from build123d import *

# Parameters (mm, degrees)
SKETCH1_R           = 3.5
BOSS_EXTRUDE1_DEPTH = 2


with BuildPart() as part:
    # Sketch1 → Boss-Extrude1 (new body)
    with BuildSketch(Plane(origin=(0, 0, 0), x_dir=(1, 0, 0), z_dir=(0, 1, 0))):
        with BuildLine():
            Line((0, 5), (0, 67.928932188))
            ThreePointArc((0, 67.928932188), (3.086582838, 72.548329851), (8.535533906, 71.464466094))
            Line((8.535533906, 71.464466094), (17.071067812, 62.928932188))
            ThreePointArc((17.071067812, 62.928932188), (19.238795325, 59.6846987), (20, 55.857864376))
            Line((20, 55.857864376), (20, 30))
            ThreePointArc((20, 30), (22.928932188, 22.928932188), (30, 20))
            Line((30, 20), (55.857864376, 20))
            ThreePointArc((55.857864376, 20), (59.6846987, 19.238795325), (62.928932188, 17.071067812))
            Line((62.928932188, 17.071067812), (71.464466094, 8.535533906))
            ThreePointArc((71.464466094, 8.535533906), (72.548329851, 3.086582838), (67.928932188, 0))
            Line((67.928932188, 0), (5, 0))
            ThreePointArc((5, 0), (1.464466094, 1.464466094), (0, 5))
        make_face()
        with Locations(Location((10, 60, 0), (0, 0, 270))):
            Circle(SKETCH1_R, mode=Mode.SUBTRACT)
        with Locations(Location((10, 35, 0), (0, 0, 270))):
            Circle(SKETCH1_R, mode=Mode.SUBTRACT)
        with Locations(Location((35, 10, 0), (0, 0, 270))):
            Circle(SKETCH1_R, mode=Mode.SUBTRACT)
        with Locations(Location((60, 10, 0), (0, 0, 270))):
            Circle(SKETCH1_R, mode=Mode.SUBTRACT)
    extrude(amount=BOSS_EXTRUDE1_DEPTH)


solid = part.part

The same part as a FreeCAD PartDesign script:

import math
import FreeCAD as App
import Part
import Sketcher
Q = App.Units.Quantity

doc = App.newDocument("Part")
params = doc.addObject("Spreadsheet::Sheet", "Params")
for row, (alias, value) in enumerate([
    ("sketch1_diameter", "7 mm"),
    ("sketch1_radius", "5 mm"),
    ("sketch1_radius2", "10 mm"),
    ("pad1_length", "2 mm"),
], start=1):
    params.set(f"A{row}", alias)
    params.set(f"B{row}", "=" + value)
    params.setAlias(f"B{row}", alias)

body = doc.addObject("PartDesign::Body", "Body")

sketch1 = body.newObject("Sketcher::SketchObject", "Sketch")
sketch1.AttachmentSupport = (doc.getObject("XZ_Plane"), [""])
sketch1.MapMode = "FlatFace"
sketch1.addGeometry(Part.LineSegment(App.Vector(0, -67.9, 0), App.Vector(0, -5, 0)), False)
sketch1.addGeometry(Part.ArcOfCircle(Part.Circle(App.Vector(5, -5, 0), App.Vector(0, 0, 1), 5), math.radians(90), math.radians(180)), False)
sketch1.addGeometry(Part.LineSegment(App.Vector(5, 0, 0), App.Vector(67.9, 0, 0)), False)
sketch1.addGeometry(Part.ArcOfCircle(Part.Circle(App.Vector(67.9, -5, 0), App.Vector(0, 0, 1), 5), math.radians(-45), math.radians(90)), False)
sketch1.addGeometry(Part.LineSegment(App.Vector(71.5, -8.5, 0), App.Vector(62.9, -17.1, 0)), False)
sketch1.addGeometry(Part.ArcOfCircle(Part.Circle(App.Vector(55.9, -10, 0), App.Vector(0, 0, 1), 10), math.radians(-90), math.radians(-45)), False)
sketch1.addGeometry(Part.LineSegment(App.Vector(55.9, -20, 0), App.Vector(30, -20, 0)), False)
sketch1.addGeometry(Part.ArcOfCircle(Part.Circle(App.Vector(30, -30, 0), App.Vector(0, 0, 1), 10), math.radians(90), math.radians(180)), False)
sketch1.addGeometry(Part.LineSegment(App.Vector(20, -30, 0), App.Vector(20, -55.9, 0)), False)
sketch1.addGeometry(Part.ArcOfCircle(Part.Circle(App.Vector(10, -55.9, 0), App.Vector(0, 0, 1), 10), math.radians(-45), math.radians(0)), False)
sketch1.addGeometry(Part.LineSegment(App.Vector(17.1, -62.9, 0), App.Vector(8.5, -71.5, 0)), False)
sketch1.addGeometry(Part.ArcOfCircle(Part.Circle(App.Vector(5, -67.9, 0), App.Vector(0, 0, 1), 5), math.radians(180), math.radians(315)), False)
sketch1.addGeometry(Part.Circle(App.Vector(60, -10, 0), App.Vector(0, 0, 1), 3.5), False)
sketch1.addGeometry(Part.Circle(App.Vector(35, -10, 0), App.Vector(0, 0, 1), 3.5), False)
sketch1.addGeometry(Part.Circle(App.Vector(10, -35, 0), App.Vector(0, 0, 1), 3.5), False)
sketch1.addGeometry(Part.Circle(App.Vector(10, -60, 0), App.Vector(0, 0, 1), 3.5), False)
sketch1.addConstraint(Sketcher.Constraint("Tangent", 0, 2, 1, 2))
sketch1.addConstraint(Sketcher.Constraint("Tangent", 1, 1, 2, 1))
sketch1.addConstraint(Sketcher.Constraint("Tangent", 2, 2, 3, 2))
sketch1.addConstraint(Sketcher.Constraint("Tangent", 3, 1, 4, 1))
sketch1.addConstraint(Sketcher.Constraint("Tangent", 4, 2, 5, 2))
sketch1.addConstraint(Sketcher.Constraint("Tangent", 5, 1, 6, 1))
sketch1.addConstraint(Sketcher.Constraint("Tangent", 6, 2, 7, 1))
sketch1.addConstraint(Sketcher.Constraint("Tangent", 7, 2, 8, 1))
sketch1.addConstraint(Sketcher.Constraint("Tangent", 8, 2, 9, 2))
sketch1.addConstraint(Sketcher.Constraint("Tangent", 9, 1, 10, 1))
sketch1.addConstraint(Sketcher.Constraint("Tangent", 10, 2, 11, 2))
sketch1.addConstraint(Sketcher.Constraint("Tangent", 11, 1, 0, 1))
sketch1.addConstraint(Sketcher.Constraint("Vertical", 0))
sketch1.addConstraint(Sketcher.Constraint("Horizontal", 2))
sketch1.addConstraint(Sketcher.Constraint("Horizontal", 6))
sketch1.addConstraint(Sketcher.Constraint("Vertical", 8))
sketch1.addConstraint(Sketcher.Constraint("Equal", 1, 3))
sketch1.addConstraint(Sketcher.Constraint("Equal", 5, 7))
sketch1.addConstraint(Sketcher.Constraint("Equal", 7, 9))
sketch1.addConstraint(Sketcher.Constraint("Equal", 3, 11))
sketch1.addConstraint(Sketcher.Constraint("Equal", 12, 13))
sketch1.addConstraint(Sketcher.Constraint("Equal", 13, 14))
sketch1.addConstraint(Sketcher.Constraint("Equal", 14, 15))
sketch1.addConstraint(Sketcher.Constraint("PointOnObject", 0, 2, -2))
sketch1.addConstraint(Sketcher.Constraint("PointOnObject", 1, 1, -1))
sketch1.addConstraint(Sketcher.Constraint("Parallel", 4, 10))
sketch1.addConstraint(Sketcher.Constraint("Horizontal", 5, 3, 12, 3))
sketch1.addConstraint(Sketcher.Constraint("Horizontal", 12, 3, 13, 3))
sketch1.addConstraint(Sketcher.Constraint("Vertical", 9, 3, 14, 3))
sketch1.addConstraint(Sketcher.Constraint("Vertical", 14, 3, 15, 3))
sketch1.addConstraint(Sketcher.Constraint("Equal", 2, 0))
sketch1.addConstraint(Sketcher.Constraint("Equal", 6, 8))
sketch1.addConstraint(Sketcher.Constraint("Equal", 4, 10))
sketch1.addConstraint(Sketcher.Constraint("Diameter", 12, Q("7 mm")))
sketch1.addConstraint(Sketcher.Constraint("Radius", 1, Q("5 mm")))
sketch1.addConstraint(Sketcher.Constraint("Radius", 5, Q("10 mm")))
sketch1.addConstraint(Sketcher.Constraint("DistanceY", 5, 3, -1, 1, Q("10 mm")))
sketch1.addConstraint(Sketcher.Constraint("DistanceX", -1, 1, 12, 3, Q("60 mm")))
sketch1.addConstraint(Sketcher.Constraint("DistanceX", -1, 1, 13, 3, Q("35 mm")))
sketch1.addConstraint(Sketcher.Constraint("DistanceY", 14, 3, -1, 1, Q("35 mm")))
sketch1.addConstraint(Sketcher.Constraint("DistanceY", 15, 3, -1, 1, Q("60 mm")))
sketch1.addConstraint(Sketcher.Constraint("DistanceX", 2, 1, 2, 2, Q("62.928932 mm")))
sketch1.setExpression("Constraints[33]", "Params.sketch1_diameter")
sketch1.setExpression("Constraints[34]", "Params.sketch1_radius")
sketch1.setExpression("Constraints[35]", "Params.sketch1_radius2")
pad1 = body.newObject("PartDesign::Pad", "Pad")
pad1.Profile = sketch1
pad1.setExpression("Length", "Params.pad1_length")
pad1.Reversed = True

doc.recompute()
